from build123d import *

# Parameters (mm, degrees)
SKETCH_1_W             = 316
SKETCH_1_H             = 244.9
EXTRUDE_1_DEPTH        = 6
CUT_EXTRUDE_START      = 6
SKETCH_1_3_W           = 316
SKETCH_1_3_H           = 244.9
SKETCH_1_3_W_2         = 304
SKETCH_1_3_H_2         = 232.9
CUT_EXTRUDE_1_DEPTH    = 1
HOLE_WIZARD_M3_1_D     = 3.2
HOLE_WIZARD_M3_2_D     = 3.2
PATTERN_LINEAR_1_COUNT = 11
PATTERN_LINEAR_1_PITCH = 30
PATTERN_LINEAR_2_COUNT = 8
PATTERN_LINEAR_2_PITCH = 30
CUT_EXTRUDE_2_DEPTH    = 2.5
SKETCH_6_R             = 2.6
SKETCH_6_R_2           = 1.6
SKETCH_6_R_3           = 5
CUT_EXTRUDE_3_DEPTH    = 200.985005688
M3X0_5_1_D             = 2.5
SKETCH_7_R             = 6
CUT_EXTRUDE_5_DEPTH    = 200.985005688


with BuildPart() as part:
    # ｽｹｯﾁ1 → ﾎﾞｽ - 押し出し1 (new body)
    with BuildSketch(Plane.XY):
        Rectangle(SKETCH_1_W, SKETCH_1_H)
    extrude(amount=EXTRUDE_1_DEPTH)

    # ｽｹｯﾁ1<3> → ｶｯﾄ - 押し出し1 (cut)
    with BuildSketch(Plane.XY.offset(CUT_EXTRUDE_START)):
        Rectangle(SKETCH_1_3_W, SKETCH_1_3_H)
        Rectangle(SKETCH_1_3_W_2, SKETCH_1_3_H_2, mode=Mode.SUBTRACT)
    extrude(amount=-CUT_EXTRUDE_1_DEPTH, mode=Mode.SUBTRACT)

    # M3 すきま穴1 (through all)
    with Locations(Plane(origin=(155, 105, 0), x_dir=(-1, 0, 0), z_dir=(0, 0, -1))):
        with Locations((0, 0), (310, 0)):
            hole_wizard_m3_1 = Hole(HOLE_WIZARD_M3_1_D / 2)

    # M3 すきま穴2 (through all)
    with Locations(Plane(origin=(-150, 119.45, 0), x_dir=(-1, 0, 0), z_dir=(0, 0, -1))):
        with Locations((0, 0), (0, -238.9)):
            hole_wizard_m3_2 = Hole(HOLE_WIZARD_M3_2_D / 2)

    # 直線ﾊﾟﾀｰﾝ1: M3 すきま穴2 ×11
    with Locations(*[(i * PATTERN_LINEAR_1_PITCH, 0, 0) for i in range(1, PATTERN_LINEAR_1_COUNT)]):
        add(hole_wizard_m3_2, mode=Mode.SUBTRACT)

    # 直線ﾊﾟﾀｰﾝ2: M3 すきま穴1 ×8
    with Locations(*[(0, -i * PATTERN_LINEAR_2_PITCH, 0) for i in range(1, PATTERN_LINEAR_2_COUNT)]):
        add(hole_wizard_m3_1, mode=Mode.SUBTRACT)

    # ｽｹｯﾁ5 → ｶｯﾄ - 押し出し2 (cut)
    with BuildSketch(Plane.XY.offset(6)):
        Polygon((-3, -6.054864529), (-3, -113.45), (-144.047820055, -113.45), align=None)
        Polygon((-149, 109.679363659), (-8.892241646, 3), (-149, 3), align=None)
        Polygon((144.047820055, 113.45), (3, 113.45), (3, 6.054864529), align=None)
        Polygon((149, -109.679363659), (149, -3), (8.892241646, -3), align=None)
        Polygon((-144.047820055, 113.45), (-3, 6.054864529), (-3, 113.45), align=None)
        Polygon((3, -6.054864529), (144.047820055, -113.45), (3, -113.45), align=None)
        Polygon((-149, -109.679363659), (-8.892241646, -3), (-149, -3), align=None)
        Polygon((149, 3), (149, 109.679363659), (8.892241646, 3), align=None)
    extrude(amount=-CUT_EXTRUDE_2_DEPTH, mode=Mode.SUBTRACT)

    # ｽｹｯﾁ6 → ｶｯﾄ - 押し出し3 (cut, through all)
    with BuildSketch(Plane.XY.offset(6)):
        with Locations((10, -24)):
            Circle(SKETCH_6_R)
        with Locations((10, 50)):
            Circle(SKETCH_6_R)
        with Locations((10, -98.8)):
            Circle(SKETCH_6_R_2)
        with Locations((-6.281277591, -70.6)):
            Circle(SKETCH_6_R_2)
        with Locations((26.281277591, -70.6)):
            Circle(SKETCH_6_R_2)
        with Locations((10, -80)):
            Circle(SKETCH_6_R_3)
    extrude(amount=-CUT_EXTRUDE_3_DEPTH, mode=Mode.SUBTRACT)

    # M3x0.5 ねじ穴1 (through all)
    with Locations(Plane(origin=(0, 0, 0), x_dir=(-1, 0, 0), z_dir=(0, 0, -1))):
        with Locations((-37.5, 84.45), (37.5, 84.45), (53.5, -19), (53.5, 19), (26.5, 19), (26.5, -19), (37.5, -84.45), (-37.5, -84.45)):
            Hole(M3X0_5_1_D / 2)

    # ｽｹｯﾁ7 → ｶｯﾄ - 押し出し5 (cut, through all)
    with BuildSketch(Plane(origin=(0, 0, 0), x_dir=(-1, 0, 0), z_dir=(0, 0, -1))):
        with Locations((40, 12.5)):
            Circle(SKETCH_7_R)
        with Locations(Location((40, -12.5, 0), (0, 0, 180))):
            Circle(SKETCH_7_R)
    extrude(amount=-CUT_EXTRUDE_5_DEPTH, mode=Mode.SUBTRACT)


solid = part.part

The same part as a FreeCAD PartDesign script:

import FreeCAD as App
import Part
import Sketcher

V = App.Vector

doc = App.newDocument("Part")
params = doc.addObject("Spreadsheet::Sheet", "Params")
for row, (alias, value) in enumerate([
    ("sketch1_width", "316 mm"),
    ("sketch1_height", "244.9 mm"),
    ("pad1_length", "6 mm"),
    ("sketch2_width", "316 mm"),
    ("sketch2_width2", "304 mm"),
    ("sketch2_height", "244.9 mm"),
    ("sketch2_height2", "232.9 mm"),
    ("pocket1_length", "1 mm"),
    ("sketch3_diameter", "3.2 mm"),
    ("hole_diameter", "3.2 mm"),
    ("sketch4_diameter", "3.2 mm"),
    ("hole2_diameter", "3.2 mm"),
    ("linearpattern_pitch", "30 mm"),
    ("linearpattern2_pitch", "30 mm"),
    ("pocket2_length", "2.5 mm"),
    ("sketch6_diameter", "10 mm"),
    ("sketch6_diameter2", "5.2 mm"),
    ("sketch6_diameter3", "3.2 mm"),
    ("sketch7_diameter", "2.5 mm"),
    ("hole3_diameter", "2.5 mm"),
    ("sketch8_diameter", "12 mm"),
], start=1):
    params.set(f"A{row}", alias)
    params.set(f"B{row}", "=" + value)
    params.setAlias(f"B{row}", alias)

body = doc.addObject("PartDesign::Body", "Body")

# Sketch on XY plane
sketch1 = doc.addObject("Sketcher::SketchObject", "Sketch")
body.addObject(sketch1)
sketch1.AttachmentSupport = (doc.XY_Plane, [""])
sketch1.MapMode = "FlatFace"
sketch1.addGeometry([
    Part.LineSegment(V(-158, 122.45, 0), V(-158, -122.45, 0)),
    Part.LineSegment(V(-158, -122.45, 0), V(158, -122.45, 0)),
    Part.LineSegment(V(158, -122.45, 0), V(158, 122.45, 0)),
    Part.LineSegment(V(158, 122.45, 0), V(-158, 122.45, 0)),
], False)
sketch1.addConstraint([
    Sketcher.Constraint("Coincident", 0, 2, 1, 1),
    Sketcher.Constraint("Coincident", 1, 2, 2, 1),
    Sketcher.Constraint("Coincident", 2, 2, 3, 1),
    Sketcher.Constraint("Coincident", 3, 2, 0, 1),
    Sketcher.Constraint("Vertical", 0),
    Sketcher.Constraint("Horizontal", 1),
    Sketcher.Constraint("Vertical", 2),
    Sketcher.Constraint("Horizontal", 3),
    Sketcher.Constraint("Symmetric", 0, 2, 2, 2, -1, 1),
    Sketcher.Constraint("DistanceX", 1, 1, 1, 2, 316.0),
    Sketcher.Constraint("DistanceY", 0, 2, 0, 1, 244.9),
])
sketch1.setExpression("Constraints[9]", "Params.sketch1_width")
sketch1.setExpression("Constraints[10]", "Params.sketch1_height")
pad1 = doc.addObject("PartDesign::Pad", "Pad")
body.addObject(pad1)
pad1.Profile = sketch1
pad1.setExpression("Length", "Params.pad1_length")

# Sketch on XY plane
sketch2 = doc.addObject("Sketcher::SketchObject", "Sketch001")
body.addObject(sketch2)
sketch2.AttachmentSupport = (doc.XY_Plane, [""])
sketch2.MapMode = "FlatFace"
sketch2.AttachmentOffset = App.Placement(V(0, 0, 6), App.Rotation())
sketch2.addGeometry([
    Part.LineSegment(V(-158, 122.45, 0), V(-158, -122.45, 0)),  # 0
    Part.LineSegment(V(-158, -122.45, 0), V(158, -122.45, 0)),  # 1
    Part.LineSegment(V(158, -122.45, 0), V(158, 122.45, 0)),  # 2
    Part.LineSegment(V(158, 122.45, 0), V(-158, 122.45, 0)),  # 3
    Part.LineSegment(V(152, -116.45, 0), V(-152, -116.45, 0)),  # 4
    Part.LineSegment(V(-152, -116.45, 0), V(-152, 116.45, 0)),  # 5
    Part.LineSegment(V(-152, 116.45, 0), V(152, 116.45, 0)),  # 6
    Part.LineSegment(V(152, 116.45, 0), V(152, -116.45, 0)),  # 7
], False)
sketch2.addConstraint([
    Sketcher.Constraint("Coincident", 0, 2, 1, 1),
    Sketcher.Constraint("Coincident", 1, 2, 2, 1),
    Sketcher.Constraint("Coincident", 2, 2, 3, 1),
    Sketcher.Constraint("Coincident", 3, 2, 0, 1),
    Sketcher.Constraint("Coincident", 4, 2, 5, 1),
    Sketcher.Constraint("Coincident", 5, 2, 6, 1),
    Sketcher.Constraint("Coincident", 6, 2, 7, 1),
    Sketcher.Constraint("Coincident", 7, 2, 4, 1),
    Sketcher.Constraint("Vertical", 0),
    Sketcher.Constraint("Horizontal", 1),
    Sketcher.Constraint("Vertical", 2),
    Sketcher.Constraint("Horizontal", 3),
    Sketcher.Constraint("Horizontal", 4),
    Sketcher.Constraint("Vertical", 5),
    Sketcher.Constraint("Horizontal", 6),
    Sketcher.Constraint("Vertical", 7),
    Sketcher.Constraint("Symmetric", 0, 2, 2, 2, -1, 1),
    Sketcher.Constraint("Symmetric", 4, 2, 6, 2, -1, 1),
    Sketcher.Constraint("DistanceX", 1, 1, 1, 2, 316.0),
    Sketcher.Constraint("DistanceX", 4, 2, 4, 1, 304.0),
    Sketcher.Constraint("DistanceY", 0, 2, 0, 1, 244.9),
    Sketcher.Constraint("DistanceY", 5, 1, 5, 2, 232.9),
])
sketch2.setExpression("Constraints[18]", "Params.sketch2_width")
sketch2.setExpression("Constraints[19]", "Params.sketch2_width2")
sketch2.setExpression("Constraints[20]", "Params.sketch2_height")
sketch2.setExpression("Constraints[21]", "Params.sketch2_height2")
pocket1 = doc.addObject("PartDesign::Pocket", "Pocket")
body.addObject(pocket1)
pocket1.Profile = sketch2
pocket1.setExpression("Length", "Params.pocket1_length")

# Sketch on XY plane
sketch3 = doc.addObject("Sketcher::SketchObject", "Sketch002")
body.addObject(sketch3)
sketch3.AttachmentSupport = (doc.XY_Plane, [""])
sketch3.MapMode = "FlatFace"
sketch3.addGeometry([
    Part.Circle(V(155, 105, 0), V(0, 0, 1), 1.6),
    Part.Circle(V(-155, 105, 0), V(0, 0, 1), 1.6),
], False)
sketch3.addConstraint([
    Sketcher.Constraint("Equal", 0, 1),
    Sketcher.Constraint("Symmetric", 0, 3, 1, 3, -2),
    Sketcher.Constraint("Diameter", 0, 3.2),
    Sketcher.Constraint("DistanceX", -1, 1, 0, 3, 155.0),
    Sketcher.Constraint("DistanceY", -1, 1, 0, 3, 105.0),
])
sketch3.setExpression("Constraints[2]", "Params.sketch3_diameter")
doc.recompute()
hole = doc.addObject("PartDesign::Hole", "Hole")
body.addObject(hole)
hole.Profile = sketch3
hole.ThreadType = "None"
hole.setExpression("Diameter", "Params.hole_diameter")
hole.DepthType = "ThroughAll"
hole.Reversed = True

# Sketch on XY plane
sketch4 = doc.addObject("Sketcher::SketchObject", "Sketch003")
body.addObject(sketch4)
sketch4.AttachmentSupport = (doc.XY_Plane, [""])
sketch4.MapMode = "FlatFace"
sketch4.addGeometry([
    Part.Circle(V(-150, 119.45, 0), V(0, 0, 1), 1.6),
    Part.Circle(V(-150, -119.45, 0), V(0, 0, 1), 1.6),
], False)
sketch4.addConstraint([
    Sketcher.Constraint("Equal", 0, 1),
    Sketcher.Constraint("Symmetric", 0, 3, 1, 3, -1),
    Sketcher.Constraint("Diameter", 0, 3.2),
    Sketcher.Constraint("DistanceX", 0, 3, -1, 1, 150.0),
    Sketcher.Constraint("DistanceY", 1, 3, 0, 3, 238.9),
])
sketch4.setExpression("Constraints[2]", "Params.sketch4_diameter")
doc.recompute()
hole2 = doc.addObject("PartDesign::Hole", "Hole001")
body.addObject(hole2)
hole2.Profile = sketch4
hole2.ThreadType = "None"
hole2.setExpression("Diameter", "Params.hole2_diameter")
hole2.DepthType = "ThroughAll"
hole2.Reversed = True
doc.recompute()

linearpattern = doc.addObject("PartDesign::LinearPattern", "LinearPattern")
body.addObject(linearpattern)
linearpattern.Originals = [hole2]
linearpattern.Direction = (doc.X_Axis, [""])
linearpattern.Mode = "offset"
linearpattern.setExpression("Offset", "Params.linearpattern_pitch")
linearpattern.Occurrences = 11
body.Tip = linearpattern
doc.recompute()

linearpattern2 = doc.addObject("PartDesign::LinearPattern", "LinearPattern001")
body.addObject(linearpattern2)
linearpattern2.Originals = [hole]
linearpattern2.Direction = (doc.Y_Axis, [""])
linearpattern2.Mode = "offset"
linearpattern2.setExpression("Offset", "Params.linearpattern2_pitch")
linearpattern2.Occurrences = 8
linearpattern2.Reversed = True
body.Tip = linearpattern2

# Sketch on XY plane
sketch5 = doc.addObject("Sketcher::SketchObject", "Sketch004")
body.addObject(sketch5)
sketch5.AttachmentSupport = (doc.XY_Plane, [""])
sketch5.MapMode = "FlatFace"
sketch5.AttachmentOffset = App.Placement(V(0, 0, 6), App.Rotation())
sketch5.addGeometry([
    Part.LineSegment(V(-3, -113.45, 0), V(-3, -6.054865, 0)),  # 0
    Part.LineSegment(V(-3, -6.054865, 0), V(-144.04782, -113.45, 0)),  # 1
    Part.LineSegment(V(-144.04782, -113.45, 0), V(-3, -113.45, 0)),  # 2
    Part.LineSegment(V(-8.892242, 3, 0), V(-149, 109.679364, 0)),  # 3
    Part.LineSegment(V(-149, 109.679364, 0), V(-149, 3, 0)),  # 4
    Part.LineSegment(V(-149, 3, 0), V(-8.892242, 3, 0)),  # 5
    Part.LineSegment(V(144.04782, 113.45, 0), V(3, 113.45, 0)),  # 6
    Part.LineSegment(V(3, 113.45, 0), V(3, 6.054865, 0)),  # 7
    Part.LineSegment(V(3, 6.054865, 0), V(144.04782, 113.45, 0)),  # 8
    Part.LineSegment(V(149, -109.679364, 0), V(149, -3, 0)),  # 9
    Part.LineSegment(V(149, -3, 0), V(8.892242, -3, 0)),  # 10
    Part.LineSegment(V(8.892242, -3, 0), V(149, -109.679364, 0)),  # 11
    Part.LineSegment(V(-144.04782, 113.45, 0), V(-3, 6.054865, 0)),  # 12
    Part.LineSegment(V(-3, 6.054865, 0), V(-3, 113.45, 0)),  # 13
    Part.LineSegment(V(-3, 113.45, 0), V(-144.04782, 113.45, 0)),  # 14
    Part.LineSegment(V(144.04782, -113.45, 0), V(3, -6.054865, 0)),  # 15
    Part.LineSegment(V(3, -6.054865, 0), V(3, -113.45, 0)),  # 16
    Part.LineSegment(V(3, -113.45, 0), V(144.04782, -113.45, 0)),  # 17
    Part.LineSegment(V(-149, -109.679364, 0), V(-8.892242, -3, 0)),  # 18
    Part.LineSegment(V(-8.892242, -3, 0), V(-149, -3, 0)),  # 19
    Part.LineSegment(V(-149, -3, 0), V(-149, -109.679364, 0)),  # 20
    Part.LineSegment(V(149, 3, 0), V(149, 109.679364, 0)),  # 21
    Part.LineSegment(V(149, 109.679364, 0), V(8.892242, 3, 0)),  # 22
    Part.LineSegment(V(8.892242, 3, 0), V(149, 3, 0)),  # 23
], False)
sketch5.addConstraint([
    Sketcher.Constraint("Coincident", 0, 2, 1, 1),
    Sketcher.Constraint("Coincident", 1, 2, 2, 1),
    Sketcher.Constraint("Coincident", 2, 2, 0, 1),
    Sketcher.Constraint("Coincident", 3, 2, 4, 1),
    Sketcher.Constraint("Coincident", 4, 2, 5, 1),
    Sketcher.Constraint("Coincident", 5, 2, 3, 1),
    Sketcher.Constraint("Coincident", 6, 2, 7, 1),
    Sketcher.Constraint("Coincident", 7, 2, 8, 1),
    Sketcher.Constraint("Coincident", 8, 2, 6, 1),
    Sketcher.Constraint("Coincident", 9, 2, 10, 1),
    Sketcher.Constraint("Coincident", 10, 2, 11, 1),
    Sketcher.Constraint("Coincident", 11, 2, 9, 1),
    Sketcher.Constraint("Coincident", 12, 2, 13, 1),
    Sketcher.Constraint("Coincident", 13, 2, 14, 1),
    Sketcher.Constraint("Coincident", 14, 2, 12, 1),
    Sketcher.Constraint("Coincident", 15, 2, 16, 1),
    Sketcher.Constraint("Coincident", 16, 2, 17, 1),
    Sketcher.Constraint("Coincident", 17, 2, 15, 1),
    Sketcher.Constraint("Coincident", 18, 2, 19, 1),
    Sketcher.Constraint("Coincident", 19, 2, 20, 1),
    Sketcher.Constraint("Coincident", 20, 2, 18, 1),
    Sketcher.Constraint("Coincident", 21, 2, 22, 1),
    Sketcher.Constraint("Coincident", 22, 2, 23, 1),
    Sketcher.Constraint("Coincident", 23, 2, 21, 1),
    Sketcher.Constraint("Vertical", 0),
    Sketcher.Constraint("Horizontal", 2),
    Sketcher.Constraint("Vertical", 4),
    Sketcher.Constraint("Horizontal", 5),
    Sketcher.Constraint("Horizontal", 6),
    Sketcher.Constraint("Vertical", 7),
    Sketcher.Constraint("Vertical", 9),
    Sketcher.Constraint("Horizontal", 10),
    Sketcher.Constraint("Vertical", 13),
    Sketcher.Constraint("Horizontal", 14),
    Sketcher.Constraint("Vertical", 16),
    Sketcher.Constraint("Horizontal", 17),
    Sketcher.Constraint("Horizontal", 19),
    Sketcher.Constraint("Vertical", 20),
    Sketcher.Constraint("Vertical", 21),
    Sketcher.Constraint("Horizontal", 23),
    Sketcher.Constraint("Symmetric", 2, 2, 6, 2, -1, 1),
    Sketcher.Constraint("Symmetric", 4, 2, 9, 2, -1, 1),
    Sketcher.Constraint("Symmetric", 12, 2, 15, 2, -1, 1),
    Sketcher.Constraint("Symmetric", 14, 2, 17, 2, -1, 1),
    Sketcher.Constraint("Symmetric", 20, 2, 21, 2, -1, 1),
    Sketcher.Constraint("Symmetric", 18, 2, 22, 2, -1, 1),
    Sketcher.Constraint("Symmetric", 7, 2, 12, 2, -2),
    Sketcher.Constraint("Symmetric", 8, 2, 14, 2, -2),
    Sketcher.Constraint("Symmetric", 10, 2, 18, 2, -2),
    Sketcher.Constraint("Symmetric", 11, 2, 20, 2, -2),
    Sketcher.Constraint("Parallel", 1, 8),
    Sketcher.Constraint("Parallel", 3, 11),
    Sketcher.Constraint("Parallel", 11, 12),
    Sketcher.Constraint("Horizontal", 0, 2, 15, 2),
    Sketcher.Constraint("Horizontal", 3, 2, 21, 2),
    Sketcher.Constraint("DistanceX", 0, 2, -1, 1, 3.0),
    Sketcher.Constraint("DistanceX", 3, 2, -1, 1, 149.0),
    Sketcher.Constraint("DistanceY", -1, 1, 4, 2, 3.0),
    Sketcher.Constraint("DistanceY", 2, 2, 6, 2, 226.9),
    Sketcher.Constraint("DistanceX", 2, 1, 2, 2, 141.04782),
    Sketcher.Constraint("DistanceX", 5, 1, 5, 2, 140.107758),
    Sketcher.Constraint("DistanceY", 11, 2, 0, 2, 103.624499),
])
pocket2 = doc.addObject("PartDesign::Pocket", "Pocket001")
body.addObject(pocket2)
pocket2.Profile = sketch5
pocket2.setExpression("Length", "Params.pocket2_length")

# Sketch on XY plane
sketch6 = doc.addObject("Sketcher::SketchObject", "Sketch005")
body.addObject(sketch6)
sketch6.AttachmentSupport = (doc.XY_Plane, [""])
sketch6.MapMode = "FlatFace"
sketch6.AttachmentOffset = App.Placement(V(0, 0, 6), App.Rotation())
sketch6.addGeometry([
    Part.Circle(V(10, -24, 0), V(0, 0, 1), 2.6),  # 0
    Part.Circle(V(10, 50, 0), V(0, 0, 1), 2.6),  # 1
    Part.Circle(V(10, -98.8, 0), V(0, 0, 1), 1.6),  # 2
    Part.Circle(V(-6.281278, -70.6, 0), V(0, 0, 1), 1.6),  # 3
    Part.Circle(V(26.281278, -70.6, 0), V(0, 0, 1), 1.6),  # 4
    Part.Circle(V(10, -80, 0), V(0, 0, 1), 5),  # 5
], False)
sketch6.addConstraint([
    Sketcher.Constraint("Equal", 0, 1),
    Sketcher.Constraint("Equal", 2, 3),
    Sketcher.Constraint("Equal", 3, 4),
    Sketcher.Constraint("Horizontal", 3, 3, 4, 3),
    Sketcher.Constraint("Vertical", 0, 3, 1, 3),
    Sketcher.Constraint("Vertical", 1, 3, 2, 3),
    Sketcher.Constraint("Vertical", 2, 3, 5, 3),
    Sketcher.Constraint("Diameter", 5, 10.0),
    Sketcher.Constraint("Diameter", 0, 5.2),
    Sketcher.Constraint("Diameter", 2, 3.2),
    Sketcher.Constraint("DistanceX", -1, 1, 0, 3, 10.0),
    Sketcher.Constraint("DistanceY", 0, 3, -1, 1, 24.0),
    Sketcher.Constraint("DistanceY", -1, 1, 1, 3, 50.0),
    Sketcher.Constraint("DistanceY", 5, 3, -1, 1, 80.0),
    Sketcher.Constraint("DistanceY", 2, 3, -1, 1, 98.8),
    Sketcher.Constraint("DistanceY", 3, 3, -1, 1, 70.6),
    Sketcher.Constraint("DistanceX", 3, 3, -1, 1, 6.281278),
    Sketcher.Constraint("DistanceX", -1, 1, 4, 3, 26.281278),
])
sketch6.setExpression("Constraints[7]", "Params.sketch6_diameter")
sketch6.setExpression("Constraints[8]", "Params.sketch6_diameter2")
sketch6.setExpression("Constraints[9]", "Params.sketch6_diameter3")
pocket3 = doc.addObject("PartDesign::Pocket", "Pocket002")
body.addObject(pocket3)
pocket3.Profile = sketch6
pocket3.Type = "ThroughAll"

# Sketch on XY plane
sketch7 = doc.addObject("Sketcher::SketchObject", "Sketch006")
body.addObject(sketch7)
sketch7.AttachmentSupport = (doc.XY_Plane, [""])
sketch7.MapMode = "FlatFace"
sketch7.addGeometry([
    Part.Circle(V(37.5, 84.45, 0), V(0, 0, 1), 1.25),  # 0
    Part.Circle(V(-37.5, 84.45, 0), V(0, 0, 1), 1.25),  # 1
    Part.Circle(V(-53.5, -19, 0), V(0, 0, 1), 1.25),  # 2
    Part.Circle(V(-53.5, 19, 0), V(0, 0, 1), 1.25),  # 3
    Part.Circle(V(-26.5, 19, 0), V(0, 0, 1), 1.25),  # 4
    Part.Circle(V(-26.5, -19, 0), V(0, 0, 1), 1.25),  # 5
    Part.Circle(V(-37.5, -84.45, 0), V(0, 0, 1), 1.25),  # 6
    Part.Circle(V(37.5, -84.45, 0), V(0, 0, 1), 1.25),  # 7
], False)
sketch7.addConstraint([
    Sketcher.Constraint("Equal", 0, 1),
    Sketcher.Constraint("Equal", 1, 2),
    Sketcher.Constraint("Equal", 2, 3),
    Sketcher.Constraint("Equal", 3, 4),
    Sketcher.Constraint("Equal", 4, 5),
    Sketcher.Constraint("Equal", 5, 6),
    Sketcher.Constraint("Equal", 6, 7),
    Sketcher.Constraint("Symmetric", 0, 3, 6, 3, -1, 1),
    Sketcher.Constraint("Symmetric", 1, 3, 7, 3, -1, 1),
    Sketcher.Constraint("Symmetric", 0, 3, 1, 3, -2),
    Sketcher.Constraint("Symmetric", 2, 3, 3, 3, -1),
    Sketcher.Constraint("Symmetric", 4, 3, 5, 3, -1),
    Sketcher.Constraint("Horizontal", 3, 3, 4, 3),
    Sketcher.Constraint("Diameter", 0, 2.5),
    Sketcher.Constraint("DistanceY", 2, 3, -1, 1, 19.0),
    Sketcher.Constraint("DistanceX", 1, 3, 0, 3, 75.0),
    Sketcher.Constraint("DistanceX", 2, 3, 1, 3, 16.0),
    Sketcher.Constraint("DistanceX", 3, 3, 4, 3, 27.0),
    Sketcher.Constraint("DistanceY", 6, 3, 1, 3, 168.9),
])
sketch7.setExpression("Constraints[13]", "Params.sketch7_diameter")
doc.recompute()
hole3 = doc.addObject("PartDesign::Hole", "Hole002")
body.addObject(hole3)
hole3.Profile = sketch7
hole3.ThreadType = "None"
hole3.setExpression("Diameter", "Params.hole3_diameter")
hole3.DepthType = "ThroughAll"
hole3.Reversed = True

# Sketch on XY plane
sketch8 = doc.addObject("Sketcher::SketchObject", "Sketch007")
body.addObject(sketch8)
sketch8.AttachmentSupport = (doc.XY_Plane, [""])
sketch8.MapMode = "FlatFace"
sketch8.addGeometry([
    Part.Circle(V(-40, 12.5, 0), V(0, 0, 1), 6),
    Part.Circle(V(-40, -12.5, 0), V(0, 0, 1), 6),
], False)
sketch8.addConstraint([
    Sketcher.Constraint("Equal", 0, 1),
    Sketcher.Constraint("Symmetric", 0, 3, 1, 3, -1),
    Sketcher.Constraint("Diameter", 0, 12.0),
    Sketcher.Constraint("DistanceX", 0, 3, -1, 1, 40.0),
    Sketcher.Constraint("DistanceY", 1, 3, 0, 3, 25.0),
])
sketch8.setExpression("Constraints[2]", "Params.sketch8_diameter")
pocket4 = doc.addObject("PartDesign::Pocket", "Pocket003")
body.addObject(pocket4)
pocket4.Profile = sketch8
pocket4.Type = "ThroughAll"
pocket4.Reversed = True

doc.recompute()
